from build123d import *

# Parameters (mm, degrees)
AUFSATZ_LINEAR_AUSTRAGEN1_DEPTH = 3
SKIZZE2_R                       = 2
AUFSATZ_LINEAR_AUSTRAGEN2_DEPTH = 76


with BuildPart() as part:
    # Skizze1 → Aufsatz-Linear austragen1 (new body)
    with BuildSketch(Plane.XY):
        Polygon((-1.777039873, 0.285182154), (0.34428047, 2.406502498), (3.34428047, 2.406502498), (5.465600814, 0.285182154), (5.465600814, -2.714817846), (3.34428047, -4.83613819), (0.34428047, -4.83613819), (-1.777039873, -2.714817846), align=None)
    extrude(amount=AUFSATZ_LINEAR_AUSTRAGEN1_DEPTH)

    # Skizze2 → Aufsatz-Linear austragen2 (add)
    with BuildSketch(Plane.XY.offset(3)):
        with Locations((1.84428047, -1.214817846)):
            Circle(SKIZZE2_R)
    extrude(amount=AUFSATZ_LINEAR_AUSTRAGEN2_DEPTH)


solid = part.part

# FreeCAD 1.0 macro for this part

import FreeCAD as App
import Part
import Sketcher

V = App.Vector


def add_polygon(sketch, points):
    """Adds a closed chain of lines whose ends are joined by coincident constraints."""
    first, n = sketch.GeometryCount, len(points)
    for a, b in zip(points, points[1:] + points[:1]):
        sketch.addGeometry(Part.LineSegment(App.Vector(*a, 0), App.Vector(*b, 0)), False)
    for i in range(n):
        sketch.addConstraint(Sketcher.Constraint("Coincident", first + i, 2, first + (i + 1) % n, 1))

doc = App.newDocument("Part")
params = doc.addObject("Spreadsheet::Sheet", "Params")
for row, (alias, value) in enumerate([
    ("sketch1_width", "3 mm"),
    ("sketch1_length", "3 mm"),
    ("pad1_length", "3 mm"),
    ("sketch2_diameter", "4 mm"),
    ("pad2_length", "76 mm"),
], start=1):
    params.set(f"A{row}", alias)
    params.set(f"B{row}", "=" + value)
    params.setAlias(f"B{row}", alias)

body = doc.addObject("PartDesign::Body", "Body")

# Sketch on XY plane
sketch1 = body.newObject("Sketcher::SketchObject", "Sketch")
sketch1.AttachmentSupport = (doc.getObject("XY_Plane"), [""])
sketch1.MapMode = "FlatFace"
add_polygon(sketch1, [(0.34428, 2.406502), (-1.77704, 0.285182), (-1.77704, -2.714818), (0.34428, -4.836138), (3.34428, -4.836138), (5.465601, -2.714818), (5.465601, 0.285182), (3.34428, 2.406502)])  # lines 0-7
sketch1.addConstraint([
    Sketcher.Constraint("Vertical", 1),
    Sketcher.Constraint("Horizontal", 3),
    Sketcher.Constraint("Vertical", 5),
    Sketcher.Constraint("Horizontal", 7),
    Sketcher.Constraint("Perpendicular", 0, 2),
    Sketcher.Constraint("Perpendicular", 2, 4),
    Sketcher.Constraint("Perpendicular", 4, 6),
    Sketcher.Constraint("Horizontal", 1, 2, 4, 2),
    Sketcher.Constraint("Horizontal", 0, 2, 5, 2),
    Sketcher.Constraint("Vertical", 3, 2, 6, 2),
    Sketcher.Constraint("Vertical", 2, 2, 7, 2),
    Sketcher.Constraint("Equal", 7, 1),
    Sketcher.Constraint("DistanceX", 3, 1, 3, 2, 3.0),
    Sketcher.Constraint("Distance", 0, 3.0),
    Sketcher.Constraint("DistanceX", -1, 1, 4, 2, 5.465601),
    Sketcher.Constraint("DistanceY", 2, 2, -1, 1, 4.836138),
])
sketch1.setExpression("Constraints[20]", "Params.sketch1_width")
sketch1.setExpression("Constraints[21]", "Params.sketch1_length")
pad1 = body.newObject("PartDesign::Pad", "Pad")
pad1.Profile = sketch1
pad1.setExpression("Length", "Params.pad1_length")

# Sketch on XY plane
sketch2 = body.newObject("Sketcher::SketchObject", "Sketch001")
sketch2.AttachmentSupport = (doc.getObject("XY_Plane"), [""])
sketch2.MapMode = "FlatFace"
sketch2.AttachmentOffset = App.Placement(V(0, 0, 3), App.Rotation())
sketch2.addGeometry(Part.Circle(V(1.84428, -1.214818, 0), V(0, 0, 1), 2), False)
sketch2.addConstraint([
    Sketcher.Constraint("Diameter", 0, 4.0),
    Sketcher.Constraint("DistanceX", -1, 1, 0, 3, 1.84428),
    Sketcher.Constraint("DistanceY", 0, 3, -1, 1, 1.214818),
])
sketch2.setExpression("Constraints[0]", "Params.sketch2_diameter")
pad2 = body.newObject("PartDesign::Pad", "Pad001")
pad2.Profile = sketch2
pad2.setExpression("Length", "Params.pad2_length")

doc.recompute()
